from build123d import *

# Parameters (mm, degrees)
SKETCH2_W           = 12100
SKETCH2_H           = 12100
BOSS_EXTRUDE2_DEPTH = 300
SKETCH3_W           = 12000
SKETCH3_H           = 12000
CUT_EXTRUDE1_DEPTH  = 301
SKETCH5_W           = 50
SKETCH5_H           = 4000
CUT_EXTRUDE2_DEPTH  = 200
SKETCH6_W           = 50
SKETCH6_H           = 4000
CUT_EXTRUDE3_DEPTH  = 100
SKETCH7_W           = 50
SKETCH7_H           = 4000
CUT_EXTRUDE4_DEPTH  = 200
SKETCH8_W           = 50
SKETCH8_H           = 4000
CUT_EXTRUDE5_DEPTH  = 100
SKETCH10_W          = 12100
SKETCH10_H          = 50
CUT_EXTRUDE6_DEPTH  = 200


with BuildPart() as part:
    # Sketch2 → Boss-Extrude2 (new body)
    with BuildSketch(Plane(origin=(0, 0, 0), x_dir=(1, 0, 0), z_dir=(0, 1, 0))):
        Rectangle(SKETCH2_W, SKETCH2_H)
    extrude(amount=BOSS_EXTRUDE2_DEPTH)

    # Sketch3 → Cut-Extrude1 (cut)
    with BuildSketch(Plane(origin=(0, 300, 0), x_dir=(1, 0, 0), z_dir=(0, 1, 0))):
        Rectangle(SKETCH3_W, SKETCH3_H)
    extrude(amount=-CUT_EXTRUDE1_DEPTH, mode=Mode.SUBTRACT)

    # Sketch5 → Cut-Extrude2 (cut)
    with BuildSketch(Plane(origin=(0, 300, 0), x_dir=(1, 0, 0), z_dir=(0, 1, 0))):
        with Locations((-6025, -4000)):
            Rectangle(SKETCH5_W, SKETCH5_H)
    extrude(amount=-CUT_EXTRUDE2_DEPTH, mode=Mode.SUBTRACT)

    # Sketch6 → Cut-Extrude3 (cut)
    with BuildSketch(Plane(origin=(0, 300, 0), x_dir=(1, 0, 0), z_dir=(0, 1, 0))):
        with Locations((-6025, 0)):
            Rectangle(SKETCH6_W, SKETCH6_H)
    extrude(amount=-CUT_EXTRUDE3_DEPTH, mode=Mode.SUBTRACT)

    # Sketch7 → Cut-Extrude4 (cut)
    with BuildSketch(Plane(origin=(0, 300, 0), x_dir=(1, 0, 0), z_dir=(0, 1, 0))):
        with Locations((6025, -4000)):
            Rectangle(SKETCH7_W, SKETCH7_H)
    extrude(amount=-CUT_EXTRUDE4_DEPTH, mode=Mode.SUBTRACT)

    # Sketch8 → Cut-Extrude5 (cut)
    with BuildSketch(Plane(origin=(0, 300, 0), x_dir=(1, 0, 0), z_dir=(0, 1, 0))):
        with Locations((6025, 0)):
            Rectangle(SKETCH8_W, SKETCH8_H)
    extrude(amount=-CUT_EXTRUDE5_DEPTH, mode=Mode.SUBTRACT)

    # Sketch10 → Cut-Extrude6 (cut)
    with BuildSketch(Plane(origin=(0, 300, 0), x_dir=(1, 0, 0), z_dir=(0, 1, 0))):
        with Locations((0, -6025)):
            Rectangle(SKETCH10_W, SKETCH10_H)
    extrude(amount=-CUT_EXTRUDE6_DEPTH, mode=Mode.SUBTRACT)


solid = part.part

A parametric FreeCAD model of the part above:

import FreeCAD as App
import Part
import Sketcher
Q = App.Units.Quantity

doc = App.newDocument("Part")
body = doc.addObject("PartDesign::Body", "Body")

sketch1 = doc.addObject("Sketcher::SketchObject", "Sketch")
body.addObject(sketch1)
sketch1.AttachmentSupport = (doc.XZ_Plane, [""])
sketch1.MapMode = "FlatFace"
sketch1.addGeometry(Part.LineSegment(App.Vector(-6050, -6050, 0), App.Vector(-6050, 6050, 0)), False)
sketch1.addGeometry(Part.LineSegment(App.Vector(-6050, 6050, 0), App.Vector(6050, 6050, 0)), False)
sketch1.addGeometry(Part.LineSegment(App.Vector(6050, 6050, 0), App.Vector(6050, -6050, 0)), False)
sketch1.addGeometry(Part.LineSegment(App.Vector(6050, -6050, 0), App.Vector(-6050, -6050, 0)), False)
sketch1.addConstraint(Sketcher.Constraint("Coincident", 0, 2, 1, 1))
sketch1.addConstraint(Sketcher.Constraint("Coincident", 1, 2, 2, 1))
sketch1.addConstraint(Sketcher.Constraint("Coincident", 2, 2, 3, 1))
sketch1.addConstraint(Sketcher.Constraint("Coincident", 3, 2, 0, 1))
sketch1.addConstraint(Sketcher.Constraint("Vertical", 0))
sketch1.addConstraint(Sketcher.Constraint("Horizontal", 1))
sketch1.addConstraint(Sketcher.Constraint("Vertical", 2))
sketch1.addConstraint(Sketcher.Constraint("Horizontal", 3))
sketch1.addConstraint(Sketcher.Constraint("Symmetric", 0, 2, 2, 2, -1, 1))
sketch1.addConstraint(Sketcher.Constraint("Equal", 3, 0))
sketch1.addConstraint(Sketcher.Constraint("DistanceX", 1, 1, 1, 2, Q("12100 mm")))
pad1 = doc.addObject("PartDesign::Pad", "Pad")
body.addObject(pad1)
pad1.Profile = sketch1
pad1.Length = 300
pad1.Reversed = True

sketch2 = doc.addObject("Sketcher::SketchObject", "Sketch001")
body.addObject(sketch2)
sketch2.AttachmentSupport = (doc.XZ_Plane, [""])
sketch2.MapMode = "FlatFace"
sketch2.AttachmentOffset = App.Placement(App.Vector(0, 0, -300), App.Rotation())
sketch2.addGeometry(Part.LineSegment(App.Vector(-6000, -6000, 0), App.Vector(-6000, 6000, 0)), False)
sketch2.addGeometry(Part.LineSegment(App.Vector(-6000, 6000, 0), App.Vector(6000, 6000, 0)), False)
sketch2.addGeometry(Part.LineSegment(App.Vector(6000, 6000, 0), App.Vector(6000, -6000, 0)), False)
sketch2.addGeometry(Part.LineSegment(App.Vector(6000, -6000, 0), App.Vector(-6000, -6000, 0)), False)
sketch2.addConstraint(Sketcher.Constraint("Coincident", 0, 2, 1, 1))
sketch2.addConstraint(Sketcher.Constraint("Coincident", 1, 2, 2, 1))
sketch2.addConstraint(Sketcher.Constraint("Coincident", 2, 2, 3, 1))
sketch2.addConstraint(Sketcher.Constraint("Coincident", 3, 2, 0, 1))
sketch2.addConstraint(Sketcher.Constraint("Vertical", 0))
sketch2.addConstraint(Sketcher.Constraint("Horizontal", 1))
sketch2.addConstraint(Sketcher.Constraint("Vertical", 2))
sketch2.addConstraint(Sketcher.Constraint("Horizontal", 3))
sketch2.addConstraint(Sketcher.Constraint("Symmetric", 0, 2, 2, 2, -1, 1))
sketch2.addConstraint(Sketcher.Constraint("Equal", 3, 0))
sketch2.addConstraint(Sketcher.Constraint("DistanceX", 1, 1, 1, 2, Q("12000 mm")))
pocket1 = doc.addObject("PartDesign::Pocket", "Pocket")
body.addObject(pocket1)
pocket1.Profile = sketch2
pocket1.Length = 301
pocket1.Reversed = True

sketch3 = doc.addObject("Sketcher::SketchObject", "Sketch002")
body.addObject(sketch3)
sketch3.AttachmentSupport = (doc.XZ_Plane, [""])
sketch3.MapMode = "FlatFace"
sketch3.AttachmentOffset = App.Placement(App.Vector(0, 0, -300), App.Rotation())
sketch3.addGeometry(Part.LineSegment(App.Vector(-6050, 2000, 0), App.Vector(-6050, 6000, 0)), False)
sketch3.addGeometry(Part.LineSegment(App.Vector(-6050, 6000, 0), App.Vector(-6000, 6000, 0)), False)
sketch3.addGeometry(Part.LineSegment(App.Vector(-6000, 6000, 0), App.Vector(-6000, 2000, 0)), False)
sketch3.addGeometry(Part.LineSegment(App.Vector(-6000, 2000, 0), App.Vector(-6050, 2000, 0)), False)
sketch3.addConstraint(Sketcher.Constraint("Coincident", 0, 2, 1, 1))
sketch3.addConstraint(Sketcher.Constraint("Coincident", 1, 2, 2, 1))
sketch3.addConstraint(Sketcher.Constraint("Coincident", 2, 2, 3, 1))
sketch3.addConstraint(Sketcher.Constraint("Coincident", 3, 2, 0, 1))
sketch3.addConstraint(Sketcher.Constraint("Vertical", 0))
sketch3.addConstraint(Sketcher.Constraint("Horizontal", 1))
sketch3.addConstraint(Sketcher.Constraint("Vertical", 2))
sketch3.addConstraint(Sketcher.Constraint("Horizontal", 3))
sketch3.addConstraint(Sketcher.Constraint("DistanceX", 1, 1, 1, 2, Q("50 mm")))
sketch3.addConstraint(Sketcher.Constraint("DistanceY", 0, 1, 0, 2, Q("4000 mm")))
sketch3.addConstraint(Sketcher.Constraint("DistanceX", 0, 2, -1, 1, Q("6050 mm")))
sketch3.addConstraint(Sketcher.Constraint("DistanceY", -1, 1, 0, 2, Q("6000 mm")))
pocket2 = doc.addObject("PartDesign::Pocket", "Pocket001")
body.addObject(pocket2)
pocket2.Profile = sketch3
pocket2.Length = 200
pocket2.Reversed = True

sketch4 = doc.addObject("Sketcher::SketchObject", "Sketch003")
body.addObject(sketch4)
sketch4.AttachmentSupport = (doc.XZ_Plane, [""])
sketch4.MapMode = "FlatFace"
sketch4.AttachmentOffset = App.Placement(App.Vector(0, 0, -300), App.Rotation())
sketch4.addGeometry(Part.LineSegment(App.Vector(-6050, -2000, 0), App.Vector(-6050, 2000, 0)), False)
sketch4.addGeometry(Part.LineSegment(App.Vector(-6050, 2000, 0), App.Vector(-6000, 2000, 0)), False)
sketch4.addGeometry(Part.LineSegment(App.Vector(-6000, 2000, 0), App.Vector(-6000, -2000, 0)), False)
sketch4.addGeometry(Part.LineSegment(App.Vector(-6000, -2000, 0), App.Vector(-6050, -2000, 0)), False)
sketch4.addConstraint(Sketcher.Constraint("Coincident", 0, 2, 1, 1))
sketch4.addConstraint(Sketcher.Constraint("Coincident", 1, 2, 2, 1))
sketch4.addConstraint(Sketcher.Constraint("Coincident", 2, 2, 3, 1))
sketch4.addConstraint(Sketcher.Constraint("Coincident", 3, 2, 0, 1))
sketch4.addConstraint(Sketcher.Constraint("Vertical", 0))
sketch4.addConstraint(Sketcher.Constraint("Horizontal", 1))
sketch4.addConstraint(Sketcher.Constraint("Vertical", 2))
sketch4.addConstraint(Sketcher.Constraint("Horizontal", 3))
sketch4.addConstraint(Sketcher.Constraint("DistanceX", 1, 1, 1, 2, Q("50 mm")))
sketch4.addConstraint(Sketcher.Constraint("DistanceY", 0, 1, 0, 2, Q("4000 mm")))
sketch4.addConstraint(Sketcher.Constraint("DistanceX", 0, 2, -1, 1, Q("6050 mm")))
sketch4.addConstraint(Sketcher.Constraint("DistanceY", -1, 1, 0, 2, Q("2000 mm")))
pocket3 = doc.addObject("PartDesign::Pocket", "Pocket002")
body.addObject(pocket3)
pocket3.Profile = sketch4
pocket3.Length = 100
pocket3.Reversed = True

sketch5 = doc.addObject("Sketcher::SketchObject", "Sketch004")
body.addObject(sketch5)
sketch5.AttachmentSupport = (doc.XZ_Plane, [""])
sketch5.MapMode = "FlatFace"
sketch5.AttachmentOffset = App.Placement(App.Vector(0, 0, -300), App.Rotation())
sketch5.addGeometry(Part.LineSegment(App.Vector(6000, 2000, 0), App.Vector(6000, 6000, 0)), False)
sketch5.addGeometry(Part.LineSegment(App.Vector(6000, 6000, 0), App.Vector(6050, 6000, 0)), False)
sketch5.addGeometry(Part.LineSegment(App.Vector(6050, 6000, 0), App.Vector(6050, 2000, 0)), False)
sketch5.addGeometry(Part.LineSegment(App.Vector(6050, 2000, 0), App.Vector(6000, 2000, 0)), False)
sketch5.addConstraint(Sketcher.Constraint("Coincident", 0, 2, 1, 1))
sketch5.addConstraint(Sketcher.Constraint("Coincident", 1, 2, 2, 1))
sketch5.addConstraint(Sketcher.Constraint("Coincident", 2, 2, 3, 1))
sketch5.addConstraint(Sketcher.Constraint("Coincident", 3, 2, 0, 1))
sketch5.addConstraint(Sketcher.Constraint("Vertical", 0))
sketch5.addConstraint(Sketcher.Constraint("Horizontal", 1))
sketch5.addConstraint(Sketcher.Constraint("Vertical", 2))
sketch5.addConstraint(Sketcher.Constraint("Horizontal", 3))
sketch5.addConstraint(Sketcher.Constraint("DistanceX", 1, 1, 1, 2, Q("50 mm")))
sketch5.addConstraint(Sketcher.Constraint("DistanceY", 0, 1, 0, 2, Q("4000 mm")))
sketch5.addConstraint(Sketcher.Constraint("DistanceX", -1, 1, 0, 2, Q("6000 mm")))
sketch5.addConstraint(Sketcher.Constraint("DistanceY", -1, 1, 0, 2, Q("6000 mm")))
pocket4 = doc.addObject("PartDesign::Pocket", "Pocket003")
body.addObject(pocket4)
pocket4.Profile = sketch5
pocket4.Length = 200
pocket4.Reversed = True

sketch6 = doc.addObject("Sketcher::SketchObject", "Sketch005")
body.addObject(sketch6)
sketch6.AttachmentSupport = (doc.XZ_Plane, [""])
sketch6.MapMode = "FlatFace"
sketch6.AttachmentOffset = App.Placement(App.Vector(0, 0, -300), App.Rotation())
sketch6.addGeometry(Part.LineSegment(App.Vector(6000, -2000, 0), App.Vector(6000, 2000, 0)), False)
sketch6.addGeometry(Part.LineSegment(App.Vector(6000, 2000, 0), App.Vector(6050, 2000, 0)), False)
sketch6.addGeometry(Part.LineSegment(App.Vector(6050, 2000, 0), App.Vector(6050, -2000, 0)), False)
sketch6.addGeometry(Part.LineSegment(App.Vector(6050, -2000, 0), App.Vector(6000, -2000, 0)), False)
sketch6.addConstraint(Sketcher.Constraint("Coincident", 0, 2, 1, 1))
sketch6.addConstraint(Sketcher.Constraint("Coincident", 1, 2, 2, 1))
sketch6.addConstraint(Sketcher.Constraint("Coincident", 2, 2, 3, 1))
sketch6.addConstraint(Sketcher.Constraint("Coincident", 3, 2, 0, 1))
sketch6.addConstraint(Sketcher.Constraint("Vertical", 0))
sketch6.addConstraint(Sketcher.Constraint("Horizontal", 1))
sketch6.addConstraint(Sketcher.Constraint("Vertical", 2))
sketch6.addConstraint(Sketcher.Constraint("Horizontal", 3))
sketch6.addConstraint(Sketcher.Constraint("DistanceX", 1, 1, 1, 2, Q("50 mm")))
sketch6.addConstraint(Sketcher.Constraint("DistanceY", 0, 1, 0, 2, Q("4000 mm")))
sketch6.addConstraint(Sketcher.Constraint("DistanceX", -1, 1, 0, 2, Q("6000 mm")))
sketch6.addConstraint(Sketcher.Constraint("DistanceY", -1, 1, 0, 2, Q("2000 mm")))
pocket5 = doc.addObject("PartDesign::Pocket", "Pocket004")
body.addObject(pocket5)
pocket5.Profile = sketch6
pocket5.Length = 100
pocket5.Reversed = True

sketch7 = doc.addObject("Sketcher::SketchObject", "Sketch006")
body.addObject(sketch7)
sketch7.AttachmentSupport = (doc.XZ_Plane, [""])
sketch7.MapMode = "FlatFace"
sketch7.AttachmentOffset = App.Placement(App.Vector(0, 0, -300), App.Rotation())
sketch7.addGeometry(Part.LineSegment(App.Vector(-6050, 6000, 0), App.Vector(-6050, 6050, 0)), False)
sketch7.addGeometry(Part.LineSegment(App.Vector(-6050, 6050, 0), App.Vector(6050, 6050, 0)), False)
sketch7.addGeometry(Part.LineSegment(App.Vector(6050, 6050, 0), App.Vector(6050, 6000, 0)), False)
sketch7.addGeometry(Part.LineSegment(App.Vector(6050, 6000, 0), App.Vector(-6050, 6000, 0)), False)
sketch7.addConstraint(Sketcher.Constraint("Coincident", 0, 2, 1, 1))
sketch7.addConstraint(Sketcher.Constraint("Coincident", 1, 2, 2, 1))
sketch7.addConstraint(Sketcher.Constraint("Coincident", 2, 2, 3, 1))
sketch7.addConstraint(Sketcher.Constraint("Coincident", 3, 2, 0, 1))
sketch7.addConstraint(Sketcher.Constraint("Vertical", 0))
sketch7.addConstraint(Sketcher.Constraint("Horizontal", 1))
sketch7.addConstraint(Sketcher.Constraint("Vertical", 2))
sketch7.addConstraint(Sketcher.Constraint("Horizontal", 3))
sketch7.addConstraint(Sketcher.Constraint("DistanceX", 1, 1, 1, 2, Q("12100 mm")))
sketch7.addConstraint(Sketcher.Constraint("DistanceY", 0, 1, 0, 2, Q("50 mm")))
sketch7.addConstraint(Sketcher.Constraint("DistanceX", 0, 2, -1, 1, Q("6050 mm")))
sketch7.addConstraint(Sketcher.Constraint("DistanceY", -1, 1, 0, 2, Q("6050 mm")))
pocket6 = doc.addObject("PartDesign::Pocket", "Pocket005")
body.addObject(pocket6)
pocket6.Profile = sketch7
pocket6.Length = 200
pocket6.Reversed = True

doc.recompute()
